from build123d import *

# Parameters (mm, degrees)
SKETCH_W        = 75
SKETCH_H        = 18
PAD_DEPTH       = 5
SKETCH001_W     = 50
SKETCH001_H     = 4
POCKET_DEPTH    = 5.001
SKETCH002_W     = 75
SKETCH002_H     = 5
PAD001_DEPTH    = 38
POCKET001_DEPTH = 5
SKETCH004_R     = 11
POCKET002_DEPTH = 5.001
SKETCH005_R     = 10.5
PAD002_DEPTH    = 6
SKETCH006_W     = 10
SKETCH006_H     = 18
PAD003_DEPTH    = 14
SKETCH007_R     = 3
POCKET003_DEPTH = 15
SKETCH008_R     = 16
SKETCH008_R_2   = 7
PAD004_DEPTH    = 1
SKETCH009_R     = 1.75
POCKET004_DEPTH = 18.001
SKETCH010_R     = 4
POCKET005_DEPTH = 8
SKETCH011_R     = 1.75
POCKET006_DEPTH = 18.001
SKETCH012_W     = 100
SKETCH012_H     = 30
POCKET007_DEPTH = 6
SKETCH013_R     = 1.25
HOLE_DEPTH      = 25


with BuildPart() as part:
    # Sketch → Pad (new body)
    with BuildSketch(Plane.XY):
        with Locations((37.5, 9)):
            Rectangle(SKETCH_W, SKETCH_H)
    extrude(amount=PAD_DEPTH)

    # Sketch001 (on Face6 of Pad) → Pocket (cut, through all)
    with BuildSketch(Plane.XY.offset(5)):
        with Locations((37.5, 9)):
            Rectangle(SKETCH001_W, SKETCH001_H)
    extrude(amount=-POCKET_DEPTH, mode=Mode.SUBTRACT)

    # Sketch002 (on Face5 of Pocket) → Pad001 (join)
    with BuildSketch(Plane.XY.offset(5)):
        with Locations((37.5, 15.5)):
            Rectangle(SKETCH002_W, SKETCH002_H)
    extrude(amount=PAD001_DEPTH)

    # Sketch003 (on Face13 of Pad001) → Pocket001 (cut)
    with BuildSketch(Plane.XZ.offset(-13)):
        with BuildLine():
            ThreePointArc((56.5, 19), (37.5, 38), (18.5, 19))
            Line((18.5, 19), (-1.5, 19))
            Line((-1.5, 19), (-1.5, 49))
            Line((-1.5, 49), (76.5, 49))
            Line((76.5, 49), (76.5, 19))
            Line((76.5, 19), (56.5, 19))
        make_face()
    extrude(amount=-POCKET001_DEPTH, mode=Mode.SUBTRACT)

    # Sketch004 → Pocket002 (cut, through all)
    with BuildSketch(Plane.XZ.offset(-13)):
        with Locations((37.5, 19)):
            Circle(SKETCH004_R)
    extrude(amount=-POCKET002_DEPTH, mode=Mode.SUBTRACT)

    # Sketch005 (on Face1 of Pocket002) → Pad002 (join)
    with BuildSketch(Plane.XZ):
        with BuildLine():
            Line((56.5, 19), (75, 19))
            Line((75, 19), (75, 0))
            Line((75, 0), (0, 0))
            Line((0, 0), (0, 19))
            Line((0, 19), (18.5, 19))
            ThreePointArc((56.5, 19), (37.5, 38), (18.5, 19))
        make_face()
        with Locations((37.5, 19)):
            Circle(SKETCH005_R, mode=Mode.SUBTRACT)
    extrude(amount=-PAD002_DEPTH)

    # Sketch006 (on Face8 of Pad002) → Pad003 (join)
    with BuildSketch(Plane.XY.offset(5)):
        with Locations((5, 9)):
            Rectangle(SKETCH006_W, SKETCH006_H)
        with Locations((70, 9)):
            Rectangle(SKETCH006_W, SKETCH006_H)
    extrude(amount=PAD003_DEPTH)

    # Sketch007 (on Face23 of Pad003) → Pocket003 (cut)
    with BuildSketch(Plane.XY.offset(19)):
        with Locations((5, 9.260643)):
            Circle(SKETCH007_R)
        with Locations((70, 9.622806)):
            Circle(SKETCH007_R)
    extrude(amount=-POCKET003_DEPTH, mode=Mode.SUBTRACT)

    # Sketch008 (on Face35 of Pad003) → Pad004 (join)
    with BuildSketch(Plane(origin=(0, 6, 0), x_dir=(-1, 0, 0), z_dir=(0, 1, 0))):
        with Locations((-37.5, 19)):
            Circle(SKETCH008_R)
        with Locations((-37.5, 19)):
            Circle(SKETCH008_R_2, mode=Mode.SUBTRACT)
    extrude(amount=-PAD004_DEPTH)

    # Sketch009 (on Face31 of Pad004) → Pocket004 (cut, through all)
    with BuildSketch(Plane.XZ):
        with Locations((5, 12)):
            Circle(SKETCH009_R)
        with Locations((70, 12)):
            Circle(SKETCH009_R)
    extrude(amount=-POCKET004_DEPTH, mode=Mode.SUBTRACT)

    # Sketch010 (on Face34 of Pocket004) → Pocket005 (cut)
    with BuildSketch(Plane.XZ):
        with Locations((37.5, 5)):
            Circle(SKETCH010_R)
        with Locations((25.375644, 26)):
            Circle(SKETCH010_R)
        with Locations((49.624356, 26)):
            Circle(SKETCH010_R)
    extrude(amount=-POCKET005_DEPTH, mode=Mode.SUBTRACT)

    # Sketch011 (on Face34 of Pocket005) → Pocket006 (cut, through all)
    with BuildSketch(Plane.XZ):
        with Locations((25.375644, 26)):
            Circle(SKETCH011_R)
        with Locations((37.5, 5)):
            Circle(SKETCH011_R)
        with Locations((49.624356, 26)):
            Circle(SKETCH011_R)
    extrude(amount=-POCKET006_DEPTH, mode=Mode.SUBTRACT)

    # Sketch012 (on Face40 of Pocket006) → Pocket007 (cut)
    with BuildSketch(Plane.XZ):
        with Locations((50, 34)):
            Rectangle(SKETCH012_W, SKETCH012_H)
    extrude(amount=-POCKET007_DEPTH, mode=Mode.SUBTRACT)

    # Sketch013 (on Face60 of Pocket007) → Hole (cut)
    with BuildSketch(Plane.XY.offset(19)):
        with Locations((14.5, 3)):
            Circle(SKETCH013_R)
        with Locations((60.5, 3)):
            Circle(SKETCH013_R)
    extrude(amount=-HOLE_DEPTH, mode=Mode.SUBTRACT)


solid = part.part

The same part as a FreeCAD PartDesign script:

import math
import FreeCAD as App
import Part
import Sketcher

V = App.Vector
Q = App.Units.Quantity


def add_polygon(sketch, points):
    """Adds a closed chain of lines whose ends are joined by coincident constraints."""
    first, n = sketch.GeometryCount, len(points)
    for a, b in zip(points, points[1:] + points[:1]):
        sketch.addGeometry(Part.LineSegment(App.Vector(*a, 0), App.Vector(*b, 0)), False)
    for i in range(n):
        sketch.addConstraint(Sketcher.Constraint("Coincident", first + i, 2, first + (i + 1) % n, 1))

doc = App.newDocument("Part")
params = doc.addObject("Spreadsheet::Sheet", "Params")
for row, (alias, value) in enumerate([
    ("sketch1_width", "75 mm"),
    ("sketch1_height", "18 mm"),
    ("pad1_length", "5 mm"),
    ("sketch2_width", "50 mm"),
    ("sketch2_height", "4 mm"),
    ("sketch3_width", "75 mm"),
    ("sketch3_height", "5 mm"),
    ("pad2_length", "38 mm"),
    ("sketch4_radius", "19 mm"),
    ("sketch4_width", "20 mm"),
    ("sketch4_height", "30 mm"),
    ("pocket2_length", "5 mm"),
    ("sketch5_diameter", "22 mm"),
    ("sketch6_diameter", "21 mm"),
    ("sketch6_radius", "19 mm"),
    ("sketch6_width", "75 mm"),
    ("sketch6_height", "19 mm"),
    ("pad3_length", "6 mm"),
    ("sketch7_width", "10 mm"),
    ("sketch7_height", "18 mm"),
    ("pad4_length", "14 mm"),
    ("sketch8_diameter", "6 mm"),
    ("pocket4_length", "15 mm"),
    ("sketch9_diameter", "32 mm"),
    ("sketch9_diameter2", "14 mm"),
    ("pad5_length", "1 mm"),
    ("sketch10_diameter", "3.5 mm"),
    ("sketch11_diameter", "8 mm"),
    ("pocket6_length", "8 mm"),
    ("sketch12_diameter", "3.5 mm"),
    ("sketch13_width", "100 mm"),
    ("sketch13_height", "30 mm"),
    ("pocket8_length", "6 mm"),
    ("sketch14_diameter", "2.5 mm"),
    ("pocket9_length", "25 mm"),
], start=1):
    params.set(f"A{row}", alias)
    params.set(f"B{row}", "=" + value)
    params.setAlias(f"B{row}", alias)

body = doc.addObject("PartDesign::Body", "Body")

sketch1 = body.newObject("Sketcher::SketchObject", "Sketch")
sketch1.AttachmentSupport = (doc.getObject("XY_Plane"), [""])
sketch1.MapMode = "FlatFace"
add_polygon(sketch1, [(0, 18), (0, 0), (75, 0), (75, 18)])
sketch1.addConstraint([
    Sketcher.Constraint("Vertical", 0),
    Sketcher.Constraint("Horizontal", 1),
    Sketcher.Constraint("Vertical", 2),
    Sketcher.Constraint("Horizontal", 3),
    Sketcher.Constraint("Coincident", 0, 2, -1, 1),
    Sketcher.Constraint("DistanceX", 1, 1, 1, 2, Q("75 mm")),
    Sketcher.Constraint("DistanceY", 0, 2, 0, 1, Q("18 mm")),
])
sketch1.setExpression("Constraints[9]", "Params.sketch1_width")
sketch1.setExpression("Constraints[10]", "Params.sketch1_height")
pad1 = body.newObject("PartDesign::Pad", "Pad")
pad1.Profile = sketch1
pad1.setExpression("Length", "Params.pad1_length")

sketch2 = body.newObject("Sketcher::SketchObject", "Sketch001")
sketch2.AttachmentSupport = (doc.getObject("XY_Plane"), [""])
sketch2.MapMode = "FlatFace"
sketch2.AttachmentOffset = App.Placement(V(0, 0, 5), App.Rotation())
add_polygon(sketch2, [(12.5, 11), (12.5, 7), (62.5, 7), (62.5, 11)])
sketch2.addConstraint([
    Sketcher.Constraint("Vertical", 0),
    Sketcher.Constraint("Horizontal", 1),
    Sketcher.Constraint("Vertical", 2),
    Sketcher.Constraint("Horizontal", 3),
    Sketcher.Constraint("DistanceX", 1, 1, 1, 2, Q("50 mm")),
    Sketcher.Constraint("DistanceY", 0, 2, 0, 1, Q("4 mm")),
    Sketcher.Constraint("DistanceY", -1, 1, 0, 2, Q("7 mm")),
    Sketcher.Constraint("DistanceX", -1, 1, 0, 2, Q("12.5 mm")),
])
sketch2.setExpression("Constraints[8]", "Params.sketch2_width")
sketch2.setExpression("Constraints[9]", "Params.sketch2_height")
pocket1 = body.newObject("PartDesign::Pocket", "Pocket")
pocket1.Profile = sketch2
pocket1.Type = "ThroughAll"

sketch3 = body.newObject("Sketcher::SketchObject", "Sketch002")
sketch3.AttachmentSupport = (doc.getObject("XY_Plane"), [""])
sketch3.MapMode = "FlatFace"
sketch3.AttachmentOffset = App.Placement(V(0, 0, 5), App.Rotation())
add_polygon(sketch3, [(0, 18), (0, 13), (75, 13), (75, 18)])
sketch3.addConstraint([
    Sketcher.Constraint("Vertical", 0),
    Sketcher.Constraint("Horizontal", 1),
    Sketcher.Constraint("Vertical", 2),
    Sketcher.Constraint("Horizontal", 3),
    Sketcher.Constraint("PointOnObject", 0, 2, -2),
    Sketcher.Constraint("DistanceX", 1, 1, 1, 2, Q("75 mm")),
    Sketcher.Constraint("DistanceY", 0, 2, 0, 1, Q("5 mm")),
    Sketcher.Constraint("DistanceY", -1, 1, 0, 2, Q("13 mm")),
])
sketch3.setExpression("Constraints[9]", "Params.sketch3_width")
sketch3.setExpression("Constraints[10]", "Params.sketch3_height")
pad2 = body.newObject("PartDesign::Pad", "Pad001")
pad2.Profile = sketch3
pad2.setExpression("Length", "Params.pad2_length")

sketch4 = body.newObject("Sketcher::SketchObject", "Sketch003")
sketch4.AttachmentSupport = (doc.getObject("XZ_Plane"), [""])
sketch4.MapMode = "FlatFace"
sketch4.AttachmentOffset = App.Placement(V(0, 0, -13), App.Rotation())
sketch4.addGeometry([
    Part.ArcOfCircle(Part.Circle(V(38, 19, 0), V(0, 0, 1), 19), math.radians(0), math.radians(180)),
    Part.LineSegment(V(56, 19, 0), V(76, 19, 0)),
    Part.LineSegment(V(76, 19, 0), V(76, 49, 0)),
    Part.LineSegment(V(76, 49, 0), V(-2, 49, 0)),
    Part.LineSegment(V(-2, 49, 0), V(-2, 19, 0)),
    Part.LineSegment(V(-2, 19, 0), V(18, 19, 0)),
], False)
sketch4.addConstraint([
    Sketcher.Constraint("Coincident", 0, 1, 1, 1),
    Sketcher.Constraint("Coincident", 1, 2, 2, 1),
    Sketcher.Constraint("Coincident", 2, 2, 3, 1),
    Sketcher.Constraint("Coincident", 3, 2, 4, 1),
    Sketcher.Constraint("Coincident", 4, 2, 5, 1),
    Sketcher.Constraint("Coincident", 5, 2, 0, 2),
    Sketcher.Constraint("Horizontal", 1),
    Sketcher.Constraint("Vertical", 2),
    Sketcher.Constraint("Horizontal", 3),
    Sketcher.Constraint("Vertical", 4),
    Sketcher.Constraint("Horizontal", 5),
    Sketcher.Constraint("Horizontal", 1, 2, 4, 2),
    Sketcher.Constraint("Equal", 1, 5),
    Sketcher.Constraint("Radius", 0, Q("19 mm")),
    Sketcher.Constraint("DistanceX", 1, 1, 1, 2, Q("20 mm")),
    Sketcher.Constraint("DistanceY", 2, 1, 2, 2, Q("30 mm")),
    Sketcher.Constraint("DistanceY", -1, 1, 0, 3, Q("19 mm")),
    Sketcher.Constraint("DistanceY", -1, 1, 0, 1, Q("19 mm")),
    Sketcher.Constraint("DistanceX", -1, 1, 0, 3, Q("37.5 mm")),
])
sketch4.setExpression("Constraints[13]", "Params.sketch4_radius")
sketch4.setExpression("Constraints[14]", "Params.sketch4_width")
sketch4.setExpression("Constraints[15]", "Params.sketch4_height")
pocket2 = body.newObject("PartDesign::Pocket", "Pocket001")
pocket2.Profile = sketch4
pocket2.setExpression("Length", "Params.pocket2_length")

sketch5 = body.newObject("Sketcher::SketchObject", "Sketch004")
sketch5.AttachmentSupport = (doc.getObject("XZ_Plane"), [""])
sketch5.MapMode = "FlatFace"
sketch5.AttachmentOffset = App.Placement(V(0, 0, -13), App.Rotation())
sketch5.addGeometry(Part.Circle(V(38, 19, 0), V(0, 0, 1), 11), False)
sketch5.addConstraint([
    Sketcher.Constraint("Diameter", 0, Q("22 mm")),
    Sketcher.Constraint("DistanceY", -1, 1, 0, 3, Q("19 mm")),
    Sketcher.Constraint("DistanceX", -1, 1, 0, 3, Q("37.5 mm")),
])
sketch5.setExpression("Constraints[0]", "Params.sketch5_diameter")
pocket3 = body.newObject("PartDesign::Pocket", "Pocket002")
pocket3.Profile = sketch5
pocket3.Type = "ThroughAll"

sketch6 = body.newObject("Sketcher::SketchObject", "Sketch005")
sketch6.AttachmentSupport = (doc.getObject("XZ_Plane"), [""])
sketch6.MapMode = "FlatFace"
sketch6.addGeometry([
    Part.LineSegment(V(75, 19, 0), V(56, 19, 0)),
    Part.ArcOfCircle(Part.Circle(V(38, 19, 0), V(0, 0, 1), 19), math.radians(0), math.radians(180)),
    Part.LineSegment(V(18, 19, 0), V(0, 19, 0)),
    Part.LineSegment(V(0, 19, 0), V(0, 0, 0)),
    Part.LineSegment(V(0, 0, 0), V(75, 0, 0)),
    Part.LineSegment(V(75, 0, 0), V(75, 19, 0)),
    Part.Circle(V(38, 19, 0), V(0, 0, 1), 10),
], False)
sketch6.addConstraint([
    Sketcher.Constraint("Coincident", 0, 2, 1, 1),
    Sketcher.Constraint("Coincident", 1, 2, 2, 1),
    Sketcher.Constraint("Coincident", 2, 2, 3, 1),
    Sketcher.Constraint("Coincident", 3, 2, 4, 1),
    Sketcher.Constraint("Coincident", 4, 2, 5, 1),
    Sketcher.Constraint("Coincident", 5, 2, 0, 1),
    Sketcher.Constraint("Horizontal", 0),
    Sketcher.Constraint("Horizontal", 2),
    Sketcher.Constraint("Vertical", 3),
    Sketcher.Constraint("Horizontal", 4),
    Sketcher.Constraint("Vertical", 5),
    Sketcher.Constraint("Coincident", 3, 2, -1, 1),
    Sketcher.Constraint("Coincident", 6, 3, 1, 3),
    Sketcher.Constraint("Horizontal", 6, 3, 0, 2),
    Sketcher.Constraint("Horizontal", 0, 2, 1, 2),
    Sketcher.Constraint("Equal", 0, 2),
    Sketcher.Constraint("Diameter", 6, Q("21 mm")),
    Sketcher.Constraint("Radius", 1, Q("19 mm")),
    Sketcher.Constraint("DistanceX", 4, 1, 4, 2, Q("75 mm")),
    Sketcher.Constraint("DistanceY", 3, 2, 3, 1, Q("19 mm")),
])
sketch6.setExpression("Constraints[16]", "Params.sketch6_diameter")
sketch6.setExpression("Constraints[17]", "Params.sketch6_radius")
sketch6.setExpression("Constraints[18]", "Params.sketch6_width")
sketch6.setExpression("Constraints[19]", "Params.sketch6_height")
pad3 = body.newObject("PartDesign::Pad", "Pad002")
pad3.Profile = sketch6
pad3.setExpression("Length", "Params.pad3_length")
pad3.Reversed = True

sketch7 = body.newObject("Sketcher::SketchObject", "Sketch006")
sketch7.AttachmentSupport = (doc.getObject("XY_Plane"), [""])
sketch7.MapMode = "FlatFace"
sketch7.AttachmentOffset = App.Placement(V(0, 0, 5), App.Rotation())
add_polygon(sketch7, [(0, 18), (0, 0), (10, 0), (10, 18)])
add_polygon(sketch7, [(65, 18), (65, 0), (75, 0), (75, 18)])
sketch7.addConstraint([
    Sketcher.Constraint("Vertical", 0),
    Sketcher.Constraint("Horizontal", 1),
    Sketcher.Constraint("Vertical", 2),
    Sketcher.Constraint("Horizontal", 3),
    Sketcher.Constraint("Vertical", 4),
    Sketcher.Constraint("Horizontal", 5),
    Sketcher.Constraint("Vertical", 6),
    Sketcher.Constraint("Horizontal", 7),
    Sketcher.Constraint("Coincident", 0, 2, -1, 1),
    Sketcher.Constraint("PointOnObject", 4, 2, -1),
    Sketcher.Constraint("Horizontal", 3, 2, 6, 2),
    Sketcher.Constraint("Equal", 3, 5),
    Sketcher.Constraint("DistanceX", 1, 1, 1, 2, Q("10 mm")),
    Sketcher.Constraint("DistanceY", 0, 2, 0, 1, Q("18 mm")),
    Sketcher.Constraint("DistanceX", -1, 1, 4, 2, Q("65 mm")),
])
sketch7.setExpression("Constraints[20]", "Params.sketch7_width")
sketch7.setExpression("Constraints[21]", "Params.sketch7_height")
pad4 = body.newObject("PartDesign::Pad", "Pad003")
pad4.Profile = sketch7
pad4.setExpression("Length", "Params.pad4_length")

sketch8 = body.newObject("Sketcher::SketchObject", "Sketch007")
sketch8.AttachmentSupport = (doc.getObject("XY_Plane"), [""])
sketch8.MapMode = "FlatFace"
sketch8.AttachmentOffset = App.Placement(V(0, 0, 19), App.Rotation())
sketch8.addGeometry([
    Part.Circle(V(5, 9.3, 0), V(0, 0, 1), 3),
    Part.Circle(V(70, 9.6, 0), V(0, 0, 1), 3),
], False)
sketch8.addConstraint([
    Sketcher.Constraint("Equal", 0, 1),
    Sketcher.Constraint("Diameter", 0, Q("6 mm")),
    Sketcher.Constraint("DistanceX", -1, 1, 0, 3, Q("5 mm")),
    Sketcher.Constraint("DistanceX", -1, 1, 1, 3, Q("70 mm")),
    Sketcher.Constraint("DistanceY", -1, 1, 0, 3, Q("9.260643 mm")),
    Sketcher.Constraint("DistanceY", -1, 1, 1, 3, Q("9.622806 mm")),
])
sketch8.setExpression("Constraints[1]", "Params.sketch8_diameter")
pocket4 = body.newObject("PartDesign::Pocket", "Pocket003")
pocket4.Profile = sketch8
pocket4.setExpression("Length", "Params.pocket4_length")

sketch9 = body.newObject("Sketcher::SketchObject", "Sketch008")
sketch9.AttachmentSupport = (doc.getObject("XZ_Plane"), [""])
sketch9.MapMode = "FlatFace"
sketch9.AttachmentOffset = App.Placement(V(0, 0, -6), App.Rotation())
sketch9.addGeometry([
    Part.Circle(V(38, 19, 0), V(0, 0, 1), 16),
    Part.Circle(V(38, 19, 0), V(0, 0, 1), 7),
], False)
sketch9.addConstraint([
    Sketcher.Constraint("Coincident", 1, 3, 0, 3),
    Sketcher.Constraint("Diameter", 0, Q("32 mm")),
    Sketcher.Constraint("Diameter", 1, Q("14 mm")),
    Sketcher.Constraint("DistanceY", -1, 1, 0, 3, Q("19 mm")),
    Sketcher.Constraint("DistanceX", -1, 1, 0, 3, Q("37.5 mm")),
])
sketch9.setExpression("Constraints[1]", "Params.sketch9_diameter")
sketch9.setExpression("Constraints[2]", "Params.sketch9_diameter2")
pad5 = body.newObject("PartDesign::Pad", "Pad004")
pad5.Profile = sketch9
pad5.setExpression("Length", "Params.pad5_length")

sketch10 = body.newObject("Sketcher::SketchObject", "Sketch009")
sketch10.AttachmentSupport = (doc.getObject("XZ_Plane"), [""])
sketch10.MapMode = "FlatFace"
sketch10.addGeometry([
    Part.Circle(V(5, 12, 0), V(0, 0, 1), 1.8),
    Part.Circle(V(70, 12, 0), V(0, 0, 1), 1.8),
], False)
sketch10.addConstraint([
    Sketcher.Constraint("Equal", 0, 1),
    Sketcher.Constraint("Horizontal", 0, 3, 1, 3),
    Sketcher.Constraint("Diameter", 0, Q("3.5 mm")),
    Sketcher.Constraint("DistanceX", -1, 1, 0, 3, Q("5 mm")),
    Sketcher.Constraint("DistanceY", -1, 1, 0, 3, Q("12 mm")),
    Sketcher.Constraint("DistanceX", -1, 1, 1, 3, Q("70 mm")),
])
sketch10.setExpression("Constraints[2]", "Params.sketch10_diameter")
pocket5 = body.newObject("PartDesign::Pocket", "Pocket004")
pocket5.Profile = sketch10
pocket5.Type = "ThroughAll"

sketch11 = body.newObject("Sketcher::SketchObject", "Sketch010")
sketch11.AttachmentSupport = (doc.getObject("XZ_Plane"), [""])
sketch11.MapMode = "FlatFace"
sketch11.addGeometry([
    Part.Circle(V(37.5, 5, 0), V(0, 0, 1), 4),
    Part.Circle(V(25.4, 26, 0), V(0, 0, 1), 4),
    Part.Circle(V(49.6, 26, 0), V(0, 0, 1), 4),
], False)
sketch11.addConstraint([
    Sketcher.Constraint("Equal", 0, 1),
    Sketcher.Constraint("Equal", 1, 2),
    Sketcher.Constraint("Horizontal", 1, 3, 2, 3),
    Sketcher.Constraint("Diameter", 0, Q("8 mm")),
    Sketcher.Constraint("DistanceY", -1, 1, 0, 3, Q("5 mm")),
    Sketcher.Constraint("DistanceY", -1, 1, 1, 3, Q("26 mm")),
    Sketcher.Constraint("DistanceX", -1, 1, 0, 3, Q("37.5 mm")),
    Sketcher.Constraint("DistanceX", 1, 3, 2, 3, Q("24.248712 mm")),
    Sketcher.Constraint("DistanceX", -1, 1, 1, 3, Q("25.375644 mm")),
])
sketch11.setExpression("Constraints[3]", "Params.sketch11_diameter")
pocket6 = body.newObject("PartDesign::Pocket", "Pocket005")
pocket6.Profile = sketch11
pocket6.setExpression("Length", "Params.pocket6_length")

sketch12 = body.newObject("Sketcher::SketchObject", "Sketch011")
sketch12.AttachmentSupport = (doc.getObject("XZ_Plane"), [""])
sketch12.MapMode = "FlatFace"
sketch12.addGeometry([
    Part.Circle(V(25.4, 26, 0), V(0, 0, 1), 1.8),
    Part.Circle(V(37.5, 5, 0), V(0, 0, 1), 1.8),
    Part.Circle(V(49.6, 26, 0), V(0, 0, 1), 1.8),
], False)
sketch12.addConstraint([
    Sketcher.Constraint("Equal", 0, 1),
    Sketcher.Constraint("Equal", 1, 2),
    Sketcher.Constraint("Horizontal", 0, 3, 2, 3),
    Sketcher.Constraint("Diameter", 0, Q("3.5 mm")),
    Sketcher.Constraint("DistanceY", -1, 1, 0, 3, Q("26 mm")),
    Sketcher.Constraint("DistanceY", -1, 1, 1, 3, Q("5 mm")),
    Sketcher.Constraint("DistanceX", -1, 1, 1, 3, Q("37.5 mm")),
    Sketcher.Constraint("DistanceX", 0, 3, 2, 3, Q("24.248712 mm")),
    Sketcher.Constraint("DistanceX", -1, 1, 0, 3, Q("25.375644 mm")),
])
sketch12.setExpression("Constraints[3]", "Params.sketch12_diameter")
pocket7 = body.newObject("PartDesign::Pocket", "Pocket006")
pocket7.Profile = sketch12
pocket7.Type = "ThroughAll"

sketch13 = body.newObject("Sketcher::SketchObject", "Sketch012")
sketch13.AttachmentSupport = (doc.getObject("XZ_Plane"), [""])
sketch13.MapMode = "FlatFace"
add_polygon(sketch13, [(0, 49), (0, 19), (100, 19), (100, 49)])
sketch13.addConstraint([
    Sketcher.Constraint("Vertical", 0),
    Sketcher.Constraint("Horizontal", 1),
    Sketcher.Constraint("Vertical", 2),
    Sketcher.Constraint("Horizontal", 3),
    Sketcher.Constraint("PointOnObject", 0, 2, -2),
    Sketcher.Constraint("DistanceX", 1, 1, 1, 2, Q("100 mm")),
    Sketcher.Constraint("DistanceY", 0, 2, 0, 1, Q("30 mm")),
    Sketcher.Constraint("DistanceY", -1, 1, 0, 2, Q("19 mm")),
])
sketch13.setExpression("Constraints[9]", "Params.sketch13_width")
sketch13.setExpression("Constraints[10]", "Params.sketch13_height")
pocket8 = body.newObject("PartDesign::Pocket", "Pocket007")
pocket8.Profile = sketch13
pocket8.setExpression("Length", "Params.pocket8_length")

sketch14 = body.newObject("Sketcher::SketchObject", "Sketch013")
sketch14.AttachmentSupport = (doc.getObject("XY_Plane"), [""])
sketch14.MapMode = "FlatFace"
sketch14.AttachmentOffset = App.Placement(V(0, 0, 19), App.Rotation())
sketch14.addGeometry([
    Part.Circle(V(14.5, 3, 0), V(0, 0, 1), 1.2),
    Part.Circle(V(60.5, 3, 0), V(0, 0, 1), 1.2),
], False)
sketch14.addConstraint([
    Sketcher.Constraint("Equal", 0, 1),
    Sketcher.Constraint("Horizontal", 0, 3, 1, 3),
    Sketcher.Constraint("Diameter", 0, Q("2.5 mm")),
    Sketcher.Constraint("DistanceY", -1, 1, 0, 3, Q("3 mm")),
    Sketcher.Constraint("DistanceX", 0, 3, 1, 3, Q("46 mm")),
    Sketcher.Constraint("DistanceX", -1, 1, 0, 3, Q("14.5 mm")),
])
sketch14.setExpression("Constraints[2]", "Params.sketch14_diameter")
pocket9 = body.newObject("PartDesign::Pocket", "Pocket008")
pocket9.Profile = sketch14
pocket9.setExpression("Length", "Params.pocket9_length")

doc.recompute()
